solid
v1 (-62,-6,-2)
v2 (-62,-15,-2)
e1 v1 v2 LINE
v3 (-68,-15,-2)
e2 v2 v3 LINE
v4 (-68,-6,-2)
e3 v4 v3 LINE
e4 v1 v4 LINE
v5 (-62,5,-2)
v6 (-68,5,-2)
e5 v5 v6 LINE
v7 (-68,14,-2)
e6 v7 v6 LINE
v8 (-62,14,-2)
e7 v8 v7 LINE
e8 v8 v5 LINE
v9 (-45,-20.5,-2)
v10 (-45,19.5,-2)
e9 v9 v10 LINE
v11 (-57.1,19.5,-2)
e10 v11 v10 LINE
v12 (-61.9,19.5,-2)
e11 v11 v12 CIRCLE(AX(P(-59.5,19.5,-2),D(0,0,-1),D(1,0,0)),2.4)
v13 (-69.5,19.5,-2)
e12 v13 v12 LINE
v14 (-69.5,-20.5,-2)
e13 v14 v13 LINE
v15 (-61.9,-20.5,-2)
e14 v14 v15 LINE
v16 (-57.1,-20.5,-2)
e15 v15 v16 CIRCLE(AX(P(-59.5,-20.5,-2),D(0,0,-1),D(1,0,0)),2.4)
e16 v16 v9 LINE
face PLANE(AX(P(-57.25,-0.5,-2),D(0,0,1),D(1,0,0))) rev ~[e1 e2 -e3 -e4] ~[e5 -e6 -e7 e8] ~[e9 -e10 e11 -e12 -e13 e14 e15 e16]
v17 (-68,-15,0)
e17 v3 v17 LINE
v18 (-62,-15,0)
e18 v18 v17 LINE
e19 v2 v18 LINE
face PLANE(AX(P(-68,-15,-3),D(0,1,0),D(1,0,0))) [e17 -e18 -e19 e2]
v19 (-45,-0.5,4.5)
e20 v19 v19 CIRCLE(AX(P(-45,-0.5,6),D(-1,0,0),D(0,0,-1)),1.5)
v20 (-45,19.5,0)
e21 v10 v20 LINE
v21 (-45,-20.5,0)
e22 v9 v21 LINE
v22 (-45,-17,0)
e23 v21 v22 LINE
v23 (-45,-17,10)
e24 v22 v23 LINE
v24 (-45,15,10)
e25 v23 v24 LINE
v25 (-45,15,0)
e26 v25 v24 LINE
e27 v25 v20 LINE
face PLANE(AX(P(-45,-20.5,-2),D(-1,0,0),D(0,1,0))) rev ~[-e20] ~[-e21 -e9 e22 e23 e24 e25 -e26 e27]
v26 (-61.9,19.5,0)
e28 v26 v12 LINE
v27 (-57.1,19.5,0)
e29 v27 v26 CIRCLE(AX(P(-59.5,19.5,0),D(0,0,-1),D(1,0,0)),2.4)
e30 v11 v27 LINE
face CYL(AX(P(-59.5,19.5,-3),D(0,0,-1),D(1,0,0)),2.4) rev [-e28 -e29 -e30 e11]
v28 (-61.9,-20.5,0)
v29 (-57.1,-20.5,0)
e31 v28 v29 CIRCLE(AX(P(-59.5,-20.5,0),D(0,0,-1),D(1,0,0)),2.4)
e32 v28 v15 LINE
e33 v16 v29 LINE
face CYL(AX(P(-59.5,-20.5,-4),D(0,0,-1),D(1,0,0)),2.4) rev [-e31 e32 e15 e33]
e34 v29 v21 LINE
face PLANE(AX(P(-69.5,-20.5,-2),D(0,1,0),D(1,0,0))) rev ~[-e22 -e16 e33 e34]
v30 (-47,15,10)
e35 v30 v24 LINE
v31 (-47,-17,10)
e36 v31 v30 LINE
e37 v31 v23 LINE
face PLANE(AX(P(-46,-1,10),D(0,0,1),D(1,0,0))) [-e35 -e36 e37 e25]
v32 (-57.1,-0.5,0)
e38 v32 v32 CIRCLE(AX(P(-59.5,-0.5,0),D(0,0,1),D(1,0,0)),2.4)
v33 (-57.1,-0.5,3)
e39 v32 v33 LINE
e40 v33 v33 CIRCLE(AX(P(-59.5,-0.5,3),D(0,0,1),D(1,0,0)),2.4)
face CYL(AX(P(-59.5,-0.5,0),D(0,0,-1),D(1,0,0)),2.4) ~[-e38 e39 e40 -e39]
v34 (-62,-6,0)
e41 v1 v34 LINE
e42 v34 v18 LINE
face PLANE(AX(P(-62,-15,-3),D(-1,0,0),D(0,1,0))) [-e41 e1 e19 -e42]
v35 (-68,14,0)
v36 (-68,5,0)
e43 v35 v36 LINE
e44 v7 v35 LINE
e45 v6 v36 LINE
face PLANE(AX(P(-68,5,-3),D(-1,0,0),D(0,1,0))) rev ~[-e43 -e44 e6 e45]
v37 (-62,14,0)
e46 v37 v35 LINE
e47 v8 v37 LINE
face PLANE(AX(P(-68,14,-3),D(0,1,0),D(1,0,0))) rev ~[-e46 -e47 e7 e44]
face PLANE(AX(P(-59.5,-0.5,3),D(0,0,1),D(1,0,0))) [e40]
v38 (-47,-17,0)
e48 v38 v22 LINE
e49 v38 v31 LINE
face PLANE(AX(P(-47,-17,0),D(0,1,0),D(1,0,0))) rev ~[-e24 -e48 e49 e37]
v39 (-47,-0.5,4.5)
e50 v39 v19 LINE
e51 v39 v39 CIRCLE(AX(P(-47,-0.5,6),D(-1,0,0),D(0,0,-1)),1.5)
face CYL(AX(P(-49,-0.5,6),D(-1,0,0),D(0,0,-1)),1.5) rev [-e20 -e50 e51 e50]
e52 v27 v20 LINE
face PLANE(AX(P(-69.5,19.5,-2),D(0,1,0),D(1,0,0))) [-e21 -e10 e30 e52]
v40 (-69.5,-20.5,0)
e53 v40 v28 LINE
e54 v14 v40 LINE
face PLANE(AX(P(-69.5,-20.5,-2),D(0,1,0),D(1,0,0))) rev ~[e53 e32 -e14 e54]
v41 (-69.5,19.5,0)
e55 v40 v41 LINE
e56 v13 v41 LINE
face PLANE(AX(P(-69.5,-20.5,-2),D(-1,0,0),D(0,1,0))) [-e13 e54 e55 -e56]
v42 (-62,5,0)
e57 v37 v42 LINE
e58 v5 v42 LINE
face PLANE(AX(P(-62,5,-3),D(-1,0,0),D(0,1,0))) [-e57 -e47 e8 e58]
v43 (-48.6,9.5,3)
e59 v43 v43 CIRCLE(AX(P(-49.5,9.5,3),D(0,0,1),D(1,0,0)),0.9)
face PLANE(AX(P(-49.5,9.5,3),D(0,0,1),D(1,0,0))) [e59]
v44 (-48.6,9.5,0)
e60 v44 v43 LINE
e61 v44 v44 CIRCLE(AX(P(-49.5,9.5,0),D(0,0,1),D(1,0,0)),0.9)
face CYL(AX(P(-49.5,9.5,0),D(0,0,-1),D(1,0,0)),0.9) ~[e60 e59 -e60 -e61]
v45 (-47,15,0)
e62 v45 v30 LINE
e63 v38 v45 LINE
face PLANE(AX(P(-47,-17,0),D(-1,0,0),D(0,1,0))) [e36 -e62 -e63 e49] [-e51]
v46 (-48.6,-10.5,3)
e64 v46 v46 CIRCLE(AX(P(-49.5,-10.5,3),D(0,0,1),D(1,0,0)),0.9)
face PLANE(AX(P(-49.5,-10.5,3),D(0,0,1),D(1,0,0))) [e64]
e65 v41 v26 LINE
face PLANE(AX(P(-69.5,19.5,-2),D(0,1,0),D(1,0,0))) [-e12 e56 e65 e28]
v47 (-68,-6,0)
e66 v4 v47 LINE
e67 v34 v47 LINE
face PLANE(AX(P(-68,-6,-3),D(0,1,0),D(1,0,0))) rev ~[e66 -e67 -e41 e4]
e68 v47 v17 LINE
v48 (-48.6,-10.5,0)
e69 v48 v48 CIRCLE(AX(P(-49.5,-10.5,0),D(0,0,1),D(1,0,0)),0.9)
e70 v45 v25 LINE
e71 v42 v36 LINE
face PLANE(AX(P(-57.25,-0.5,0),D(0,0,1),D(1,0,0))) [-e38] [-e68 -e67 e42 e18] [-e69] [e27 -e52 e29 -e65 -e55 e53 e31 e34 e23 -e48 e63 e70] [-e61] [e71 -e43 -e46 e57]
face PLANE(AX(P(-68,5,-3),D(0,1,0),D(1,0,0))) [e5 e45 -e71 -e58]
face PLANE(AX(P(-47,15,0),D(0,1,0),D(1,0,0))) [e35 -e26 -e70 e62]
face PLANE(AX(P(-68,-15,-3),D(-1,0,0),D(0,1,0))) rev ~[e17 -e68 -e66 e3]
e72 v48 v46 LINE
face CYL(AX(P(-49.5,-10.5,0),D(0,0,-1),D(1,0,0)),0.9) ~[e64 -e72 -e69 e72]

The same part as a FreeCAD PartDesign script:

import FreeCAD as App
import Part
import Sketcher

V = App.Vector

doc = App.newDocument("Part")
body = doc.addObject("PartDesign::Body", "Body")

sketch1 = body.newObject("Sketcher::SketchObject", "Sketch")
sketch1.AttachmentSupport = (doc.getObject("XY_Plane"), [""])
sketch1.MapMode = "FlatFace"
sketch1.addGeometry(Part.Circle(V(0, 0, 0), V(0, 0, 1), 1.5), False)
sketch1.addConstraint([
    Sketcher.Constraint("Coincident", 0, 3, -1, 1),
    Sketcher.Constraint("Diameter", 0, 3.0),
])
pad1 = body.newObject("PartDesign::Pad", "Pad")
pad1.Profile = sketch1
pad1.Length = 10
body2 = doc.addObject("PartDesign::Body", "Body001")
doc.recompute()

body.Placement = App.Placement(V(0, 0, 0), App.Rotation(V(0, 1, 0), 90))
boolean = body2.newObject("PartDesign::Boolean", "Boolean")
boolean.Type = "Fuse"
boolean.addObjects([body])
body3 = doc.addObject("PartDesign::Body", "Body002")
doc.recompute()

body2.Placement = App.Placement(V(-49, -0.5, 6), App.Rotation(V(0, 0, 1), 0))
boolean2 = body3.newObject("PartDesign::Boolean", "Boolean001")
boolean2.Type = "Fuse"
boolean2.addObjects([body2])
body4 = doc.addObject("PartDesign::Body", "Body003")

sketch2 = body4.newObject("Sketcher::SketchObject", "Sketch001")
sketch2.AttachmentSupport = (doc.getObject("XY_Plane003"), [""])
sketch2.MapMode = "FlatFace"
sketch2.addGeometry(Part.Circle(V(-59.5, -0.5, 0), V(0, 0, 1), 2.4), False)
sketch2.addConstraint([
    Sketcher.Constraint("Diameter", 0, 4.8),
    Sketcher.Constraint("DistanceX", 0, 3, -1, 1, 59.5),
    Sketcher.Constraint("DistanceY", 0, 3, -1, 1, 0.5),
])
pad2 = body4.newObject("PartDesign::Pad", "Pad001")
pad2.Profile = sketch2
pad2.Length = 3
body5 = doc.addObject("PartDesign::Body", "Body004")

sketch3 = body5.newObject("Sketcher::SketchObject", "Sketch002")
sketch3.AttachmentSupport = (doc.getObject("XY_Plane004"), [""])
sketch3.MapMode = "FlatFace"
sketch3.addGeometry(Part.Circle(V(-49.5, 9.5, 0), V(0, 0, 1), 0.9), False)
sketch3.addConstraint([
    Sketcher.Constraint("Diameter", 0, 1.8),
    Sketcher.Constraint("DistanceX", 0, 3, -1, 1, 49.5),
    Sketcher.Constraint("DistanceY", -1, 1, 0, 3, 9.5),
])
pad3 = body5.newObject("PartDesign::Pad", "Pad002")
pad3.Profile = sketch3
pad3.Length = 3
body6 = doc.addObject("PartDesign::Body", "Body005")

sketch4 = body6.newObject("Sketcher::SketchObject", "Sketch003")
sketch4.AttachmentSupport = (doc.getObject("XY_Plane005"), [""])
sketch4.MapMode = "FlatFace"
sketch4.addGeometry(Part.Circle(V(-49.5, -10.5, 0), V(0, 0, 1), 0.9), False)
sketch4.addConstraint([
    Sketcher.Constraint("Diameter", 0, 1.8),
    Sketcher.Constraint("DistanceX", 0, 3, -1, 1, 49.5),
    Sketcher.Constraint("DistanceY", 0, 3, -1, 1, 10.5),
])
pad4 = body6.newObject("PartDesign::Pad", "Pad003")
pad4.Profile = sketch4
pad4.Length = 3
body7 = doc.addObject("PartDesign::Body", "Body006")

sketch5 = body7.newObject("Sketcher::SketchObject", "Sketch004")
sketch5.AttachmentSupport = (doc.getObject("XY_Plane006"), [""])
sketch5.MapMode = "FlatFace"
sketch5.AttachmentOffset = App.Placement(V(0, 0, -4), App.Rotation())
sketch5.addGeometry(Part.Circle(V(-59.5, -20.5, 0), V(0, 0, 1), 2.4), False)
sketch5.addConstraint([
    Sketcher.Constraint("Diameter", 0, 4.8),
    Sketcher.Constraint("DistanceX", 0, 3, -1, 1, 59.5),
    Sketcher.Constraint("DistanceY", 0, 3, -1, 1, 20.5),
])
pad5 = body7.newObject("PartDesign::Pad", "Pad004")
pad5.Profile = sketch5
pad5.Length = 6
body8 = doc.addObject("PartDesign::Body", "Body007")

sketch6 = body8.newObject("Sketcher::SketchObject", "Sketch005")
sketch6.AttachmentSupport = (doc.getObject("XY_Plane007"), [""])
sketch6.MapMode = "FlatFace"
sketch6.AttachmentOffset = App.Placement(V(0, 0, -3), App.Rotation())
sketch6.addGeometry(Part.Circle(V(-59.5, 19.5, 0), V(0, 0, 1), 2.4), False)
sketch6.addConstraint([
    Sketcher.Constraint("Diameter", 0, 4.8),
    Sketcher.Constraint("DistanceX", 0, 3, -1, 1, 59.5),
    Sketcher.Constraint("DistanceY", -1, 1, 0, 3, 19.5),
])
pad6 = body8.newObject("PartDesign::Pad", "Pad005")
pad6.Profile = sketch6
pad6.Length = 5
body9 = doc.addObject("PartDesign::Body", "Body008")

sketch7 = body9.newObject("Sketcher::SketchObject", "Sketch006")
sketch7.AttachmentSupport = (doc.getObject("XY_Plane008"), [""])
sketch7.MapMode = "FlatFace"
sketch7.addGeometry([
    Part.LineSegment(V(-47, 15, 0), V(-47, -17, 0)),
    Part.LineSegment(V(-47, -17, 0), V(-45, -17, 0)),
    Part.LineSegment(V(-45, -17, 0), V(-45, 15, 0)),
    Part.LineSegment(V(-45, 15, 0), V(-47, 15, 0)),
], False)
sketch7.addConstraint([
    Sketcher.Constraint("Coincident", 0, 2, 1, 1),
    Sketcher.Constraint("Coincident", 1, 2, 2, 1),
    Sketcher.Constraint("Coincident", 2, 2, 3, 1),
    Sketcher.Constraint("Coincident", 3, 2, 0, 1),
    Sketcher.Constraint("Vertical", 0),
    Sketcher.Constraint("Horizontal", 1),
    Sketcher.Constraint("Vertical", 2),
    Sketcher.Constraint("Horizontal", 3),
    Sketcher.Constraint("DistanceX", 1, 1, 1, 2, 2.0),
    Sketcher.Constraint("DistanceY", 0, 2, 0, 1, 32.0),
    Sketcher.Constraint("DistanceX", 0, 2, -1, 1, 47.0),
    Sketcher.Constraint("DistanceY", 0, 2, -1, 1, 17.0),
])
pad7 = body9.newObject("PartDesign::Pad", "Pad006")
pad7.Profile = sketch7
pad7.Length = 10
body10 = doc.addObject("PartDesign::Body", "Body009")

sketch8 = body10.newObject("Sketcher::SketchObject", "Sketch007")
sketch8.AttachmentSupport = (doc.getObject("XY_Plane009"), [""])
sketch8.MapMode = "FlatFace"
sketch8.AttachmentOffset = App.Placement(V(0, 0, -3), App.Rotation())
sketch8.addGeometry([
    Part.LineSegment(V(-68, 14, 0), V(-68, 5, 0)),
    Part.LineSegment(V(-68, 5, 0), V(-62, 5, 0)),
    Part.LineSegment(V(-62, 5, 0), V(-62, 14, 0)),
    Part.LineSegment(V(-62, 14, 0), V(-68, 14, 0)),
], False)
sketch8.addConstraint([
    Sketcher.Constraint("Coincident", 0, 2, 1, 1),
    Sketcher.Constraint("Coincident", 1, 2, 2, 1),
    Sketcher.Constraint("Coincident", 2, 2, 3, 1),
    Sketcher.Constraint("Coincident", 3, 2, 0, 1),
    Sketcher.Constraint("Vertical", 0),
    Sketcher.Constraint("Horizontal", 1),
    Sketcher.Constraint("Vertical", 2),
    Sketcher.Constraint("Horizontal", 3),
    Sketcher.Constraint("DistanceX", 1, 1, 1, 2, 6.0),
    Sketcher.Constraint("DistanceY", 0, 2, 0, 1, 9.0),
    Sketcher.Constraint("DistanceX", 0, 2, -1, 1, 68.0),
    Sketcher.Constraint("DistanceY", -1, 1, 0, 2, 5.0),
])
pad8 = body10.newObject("PartDesign::Pad", "Pad007")
pad8.Profile = sketch8
pad8.Length = 10
body11 = doc.addObject("PartDesign::Body", "Body010")

sketch9 = body11.newObject("Sketcher::SketchObject", "Sketch008")
sketch9.AttachmentSupport = (doc.getObject("XY_Plane010"), [""])
sketch9.MapMode = "FlatFace"
sketch9.AttachmentOffset = App.Placement(V(0, 0, -3), App.Rotation())
sketch9.addGeometry([
    Part.LineSegment(V(-68, -6, 0), V(-68, -15, 0)),
    Part.LineSegment(V(-68, -15, 0), V(-62, -15, 0)),
    Part.LineSegment(V(-62, -15, 0), V(-62, -6, 0)),
    Part.LineSegment(V(-62, -6, 0), V(-68, -6, 0)),
], False)
sketch9.addConstraint([
    Sketcher.Constraint("Coincident", 0, 2, 1, 1),
    Sketcher.Constraint("Coincident", 1, 2, 2, 1),
    Sketcher.Constraint("Coincident", 2, 2, 3, 1),
    Sketcher.Constraint("Coincident", 3, 2, 0, 1),
    Sketcher.Constraint("Vertical", 0),
    Sketcher.Constraint("Horizontal", 1),
    Sketcher.Constraint("Vertical", 2),
    Sketcher.Constraint("Horizontal", 3),
    Sketcher.Constraint("DistanceX", 1, 1, 1, 2, 6.0),
    Sketcher.Constraint("DistanceY", 0, 2, 0, 1, 9.0),
    Sketcher.Constraint("DistanceX", 0, 2, -1, 1, 68.0),
    Sketcher.Constraint("DistanceY", 0, 2, -1, 1, 15.0),
])
pad9 = body11.newObject("PartDesign::Pad", "Pad008")
pad9.Profile = sketch9
pad9.Length = 10
body12 = doc.addObject("PartDesign::Body", "Body011")

sketch10 = body12.newObject("Sketcher::SketchObject", "Sketch009")
sketch10.AttachmentSupport = (doc.getObject("XY_Plane011"), [""])
sketch10.MapMode = "FlatFace"
sketch10.AttachmentOffset = App.Placement(V(0, 0, -2), App.Rotation())
sketch10.addGeometry([
    Part.LineSegment(V(-70, 20, 0), V(-70, -20, 0)),
    Part.LineSegment(V(-70, -20, 0), V(-45, -20, 0)),
    Part.LineSegment(V(-45, -20, 0), V(-45, 20, 0)),
    Part.LineSegment(V(-45, 20, 0), V(-70, 20, 0)),
], False)
sketch10.addConstraint([
    Sketcher.Constraint("Coincident", 0, 2, 1, 1),
    Sketcher.Constraint("Coincident", 1, 2, 2, 1),
    Sketcher.Constraint("Coincident", 2, 2, 3, 1),
    Sketcher.Constraint("Coincident", 3, 2, 0, 1),
    Sketcher.Constraint("Vertical", 0),
    Sketcher.Constraint("Horizontal", 1),
    Sketcher.Constraint("Vertical", 2),
    Sketcher.Constraint("Horizontal", 3),
    Sketcher.Constraint("DistanceY", 0, 2, 0, 1, 40.0),
    Sketcher.Constraint("DistanceX", 1, 1, 1, 2, 24.5),
    Sketcher.Constraint("DistanceX", 1, 2, -1, 1, 45.0),
    Sketcher.Constraint("DistanceY", 0, 2, -1, 1, 20.5),
])
pad10 = body12.newObject("PartDesign::Pad", "Pad009")
pad10.Profile = sketch10
pad10.Length = 2
doc.recompute()

boolean3 = body12.newObject("PartDesign::Boolean", "Boolean002")
boolean3.Type = "Cut"
boolean3.addObjects([body11])
doc.recompute()

boolean4 = body12.newObject("PartDesign::Boolean", "Boolean003")
boolean4.Type = "Cut"
boolean4.addObjects([body10])
doc.recompute()

boolean5 = body12.newObject("PartDesign::Boolean", "Boolean004")
boolean5.Type = "Fuse"
boolean5.addObjects([body9])
doc.recompute()

boolean6 = body12.newObject("PartDesign::Boolean", "Boolean005")
boolean6.Type = "Cut"
boolean6.addObjects([body8])
doc.recompute()

boolean7 = body12.newObject("PartDesign::Boolean", "Boolean006")
boolean7.Type = "Cut"
boolean7.addObjects([body7])
doc.recompute()

boolean8 = body12.newObject("PartDesign::Boolean", "Boolean007")
boolean8.Type = "Fuse"
boolean8.addObjects([body4])
doc.recompute()

boolean9 = body12.newObject("PartDesign::Boolean", "Boolean008")
boolean9.Type = "Fuse"
boolean9.addObjects([body5])
doc.recompute()

boolean10 = body12.newObject("PartDesign::Boolean", "Boolean009")
boolean10.Type = "Fuse"
boolean10.addObjects([body6])
doc.recompute()

boolean11 = body12.newObject("PartDesign::Boolean", "Boolean010")
boolean11.Type = "Cut"
boolean11.addObjects([body3])

doc.recompute()
